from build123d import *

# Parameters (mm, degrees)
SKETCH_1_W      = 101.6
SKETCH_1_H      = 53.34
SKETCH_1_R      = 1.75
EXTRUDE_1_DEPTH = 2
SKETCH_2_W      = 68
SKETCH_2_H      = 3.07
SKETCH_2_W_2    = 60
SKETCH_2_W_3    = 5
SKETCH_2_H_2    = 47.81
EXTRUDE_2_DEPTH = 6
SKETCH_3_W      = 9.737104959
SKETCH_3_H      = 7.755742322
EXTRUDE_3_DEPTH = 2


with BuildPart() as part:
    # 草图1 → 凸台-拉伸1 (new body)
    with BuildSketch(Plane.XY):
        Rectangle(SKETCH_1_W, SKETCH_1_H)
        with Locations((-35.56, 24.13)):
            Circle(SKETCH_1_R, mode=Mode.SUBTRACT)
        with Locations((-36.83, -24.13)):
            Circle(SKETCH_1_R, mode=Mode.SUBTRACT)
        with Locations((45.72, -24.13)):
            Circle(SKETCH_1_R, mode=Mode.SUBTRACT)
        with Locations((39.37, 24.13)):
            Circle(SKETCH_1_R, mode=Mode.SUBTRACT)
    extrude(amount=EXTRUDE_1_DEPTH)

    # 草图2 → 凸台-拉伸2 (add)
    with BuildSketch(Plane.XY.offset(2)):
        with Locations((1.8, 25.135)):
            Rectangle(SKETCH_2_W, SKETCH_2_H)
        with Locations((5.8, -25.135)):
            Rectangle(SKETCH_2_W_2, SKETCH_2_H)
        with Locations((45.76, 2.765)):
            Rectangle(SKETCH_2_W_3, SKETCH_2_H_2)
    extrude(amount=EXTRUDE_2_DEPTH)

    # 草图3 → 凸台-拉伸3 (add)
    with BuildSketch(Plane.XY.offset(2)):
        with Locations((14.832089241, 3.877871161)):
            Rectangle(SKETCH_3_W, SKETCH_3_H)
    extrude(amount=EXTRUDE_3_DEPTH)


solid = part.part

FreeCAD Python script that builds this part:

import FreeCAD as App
import Part
import Sketcher

V = App.Vector

doc = App.newDocument("Part")
params = doc.addObject("Spreadsheet::Sheet", "Params")
for row, (alias, value) in enumerate([
    ("sketch1_diameter", "3.5 mm"),
    ("sketch1_width", "101.6 mm"),
    ("sketch1_height", "53.34 mm"),
    ("pad1_length", "2 mm"),
    ("sketch2_width", "68 mm"),
    ("sketch2_width2", "60 mm"),
    ("sketch2_width3", "5 mm"),
    ("sketch2_height", "3.07 mm"),
    ("sketch2_height2", "47.81 mm"),
    ("pad2_length", "6 mm"),
    ("pad3_length", "2 mm"),
], start=1):
    params.set(f"A{row}", alias)
    params.set(f"B{row}", "=" + value)
    params.setAlias(f"B{row}", alias)

body = doc.addObject("PartDesign::Body", "Body")

# Sketch on XY plane
sketch1 = body.newObject("Sketcher::SketchObject", "Sketch")
sketch1.AttachmentSupport = (doc.getObject("XY_Plane"), [""])
sketch1.MapMode = "FlatFace"
sketch1.addGeometry([
    Part.LineSegment(V(-50.8, 26.7, 0), V(-50.8, -26.7, 0)),  # 0
    Part.LineSegment(V(-50.8, -26.7, 0), V(50.8, -26.7, 0)),  # 1
    Part.LineSegment(V(50.8, -26.7, 0), V(50.8, 26.7, 0)),  # 2
    Part.LineSegment(V(50.8, 26.7, 0), V(-50.8, 26.7, 0)),  # 3
    Part.Circle(V(-36.8, -24.1, 0), V(0, 0, 1), 1.8),  # 4
    Part.Circle(V(45.7, -24.1, 0), V(0, 0, 1), 1.8),  # 5
    Part.Circle(V(-35.6, 24.1, 0), V(0, 0, 1), 1.8),  # 6
    Part.Circle(V(39.4, 24.1, 0), V(0, 0, 1), 1.8),  # 7
], False)
sketch1.addConstraint([
    Sketcher.Constraint("Coincident", 0, 2, 1, 1),
    Sketcher.Constraint("Coincident", 1, 2, 2, 1),
    Sketcher.Constraint("Coincident", 2, 2, 3, 1),
    Sketcher.Constraint("Coincident", 3, 2, 0, 1),
    Sketcher.Constraint("Vertical", 0),
    Sketcher.Constraint("Horizontal", 1),
    Sketcher.Constraint("Vertical", 2),
    Sketcher.Constraint("Horizontal", 3),
    Sketcher.Constraint("Equal", 4, 5),
    Sketcher.Constraint("Equal", 5, 6),
    Sketcher.Constraint("Equal", 6, 7),
    Sketcher.Constraint("Symmetric", 0, 2, 2, 2, -1, 1),
    Sketcher.Constraint("Horizontal", 4, 3, 5, 3),
    Sketcher.Constraint("Horizontal", 6, 3, 7, 3),
    Sketcher.Constraint("Diameter", 4, 3.5),
    Sketcher.Constraint("DistanceX", 1, 1, 1, 2, 101.6),
    Sketcher.Constraint("DistanceY", 0, 2, 0, 1, 53.34),
    Sketcher.Constraint("DistanceX", 4, 3, 7, 3, 76.2),
    Sketcher.Constraint("DistanceY", 0, 2, 6, 3, 50.8),
    Sketcher.Constraint("DistanceY", 5, 3, 2, 2, 50.8),
    Sketcher.Constraint("DistanceX", 4, 3, -1, 1, 36.83),
    Sketcher.Constraint("DistanceX", -1, 1, 5, 3, 45.72),
    Sketcher.Constraint("DistanceX", 6, 3, -1, 1, 35.56),
])
sketch1.setExpression("Constraints[14]", "Params.sketch1_diameter")
sketch1.setExpression("Constraints[15]", "Params.sketch1_width")
sketch1.setExpression("Constraints[16]", "Params.sketch1_height")
pad1 = body.newObject("PartDesign::Pad", "Pad")
pad1.Profile = sketch1
pad1.setExpression("Length", "Params.pad1_length")

# Sketch on XY plane
sketch2 = body.newObject("Sketcher::SketchObject", "Sketch001")
sketch2.AttachmentSupport = (doc.getObject("XY_Plane"), [""])
sketch2.MapMode = "FlatFace"
sketch2.AttachmentOffset = App.Placement(V(0, 0, 2), App.Rotation())
sketch2.addGeometry([
    Part.LineSegment(V(-32.2, 26.7, 0), V(-32.2, 23.6, 0)),  # 0
    Part.LineSegment(V(-32.2, 23.6, 0), V(35.8, 23.6, 0)),  # 1
    Part.LineSegment(V(35.8, 23.6, 0), V(35.8, 26.7, 0)),  # 2
    Part.LineSegment(V(35.8, 26.7, 0), V(-32.2, 26.7, 0)),  # 3
    Part.LineSegment(V(-24.2, -23.6, 0), V(-24.2, -26.7, 0)),  # 4
    Part.LineSegment(V(-24.2, -26.7, 0), V(35.8, -26.7, 0)),  # 5
    Part.LineSegment(V(35.8, -26.7, 0), V(35.8, -23.6, 0)),  # 6
    Part.LineSegment(V(35.8, -23.6, 0), V(-24.2, -23.6, 0)),  # 7
    Part.LineSegment(V(43.3, 26.7, 0), V(43.3, -21.1, 0)),  # 8
    Part.LineSegment(V(43.3, -21.1, 0), V(48.3, -21.1, 0)),  # 9
    Part.LineSegment(V(48.3, -21.1, 0), V(48.3, 26.7, 0)),  # 10
    Part.LineSegment(V(48.3, 26.7, 0), V(43.3, 26.7, 0)),  # 11
], False)
sketch2.addConstraint([
    Sketcher.Constraint("Coincident", 0, 2, 1, 1),
    Sketcher.Constraint("Coincident", 1, 2, 2, 1),
    Sketcher.Constraint("Coincident", 2, 2, 3, 1),
    Sketcher.Constraint("Coincident", 3, 2, 0, 1),
    Sketcher.Constraint("Coincident", 4, 2, 5, 1),
    Sketcher.Constraint("Coincident", 5, 2, 6, 1),
    Sketcher.Constraint("Coincident", 6, 2, 7, 1),
    Sketcher.Constraint("Coincident", 7, 2, 4, 1),
    Sketcher.Constraint("Coincident", 8, 2, 9, 1),
    Sketcher.Constraint("Coincident", 9, 2, 10, 1),
    Sketcher.Constraint("Coincident", 10, 2, 11, 1),
    Sketcher.Constraint("Coincident", 11, 2, 8, 1),
    Sketcher.Constraint("Vertical", 0),
    Sketcher.Constraint("Horizontal", 1),
    Sketcher.Constraint("Vertical", 2),
    Sketcher.Constraint("Horizontal", 3),
    Sketcher.Constraint("Vertical", 4),
    Sketcher.Constraint("Horizontal", 5),
    Sketcher.Constraint("Vertical", 6),
    Sketcher.Constraint("Horizontal", 7),
    Sketcher.Constraint("Vertical", 8),
    Sketcher.Constraint("Horizontal", 9),
    Sketcher.Constraint("Vertical", 10),
    Sketcher.Constraint("Horizontal", 11),
    Sketcher.Constraint("Symmetric", 2, 2, 5, 2, -1),
    Sketcher.Constraint("Horizontal", 3, 2, 10, 2),
    Sketcher.Constraint("Equal", 2, 4),
    Sketcher.Constraint("DistanceX", 1, 1, 1, 2, 68.0),
    Sketcher.Constraint("DistanceX", 5, 1, 5, 2, 60.0),
    Sketcher.Constraint("DistanceX", 9, 1, 9, 2, 5.0),
    Sketcher.Constraint("DistanceY", 0, 2, 0, 1, 3.07),
    Sketcher.Constraint("DistanceY", 8, 2, 8, 1, 47.81),
    Sketcher.Constraint("DistanceX", 0, 2, -1, 1, 32.2),
    Sketcher.Constraint("DistanceY", -1, 1, 0, 2, 23.6),
    Sketcher.Constraint("DistanceX", -1, 1, 8, 2, 43.26),
])
sketch2.setExpression("Constraints[27]", "Params.sketch2_width")
sketch2.setExpression("Constraints[28]", "Params.sketch2_width2")
sketch2.setExpression("Constraints[29]", "Params.sketch2_width3")
sketch2.setExpression("Constraints[30]", "Params.sketch2_height")
sketch2.setExpression("Constraints[31]", "Params.sketch2_height2")
pad2 = body.newObject("PartDesign::Pad", "Pad001")
pad2.Profile = sketch2
pad2.setExpression("Length", "Params.pad2_length")

# Sketch on XY plane
sketch3 = body.newObject("Sketcher::SketchObject", "Sketch002")
sketch3.AttachmentSupport = (doc.getObject("XY_Plane"), [""])
sketch3.MapMode = "FlatFace"
sketch3.AttachmentOffset = App.Placement(V(0, 0, 2), App.Rotation())
sketch3.addGeometry([
    Part.LineSegment(V(10, 8, 0), V(10, 0, 0)),
    Part.LineSegment(V(10, 0, 0), V(20, 0, 0)),
    Part.LineSegment(V(20, 0, 0), V(20, 8, 0)),
    Part.LineSegment(V(20, 8, 0), V(10, 8, 0)),
], False)
sketch3.addConstraint([
    Sketcher.Constraint("Coincident", 0, 2, 1, 1),
    Sketcher.Constraint("Coincident", 1, 2, 2, 1),
    Sketcher.Constraint("Coincident", 2, 2, 3, 1),
    Sketcher.Constraint("Coincident", 3, 2, 0, 1),
    Sketcher.Constraint("Vertical", 0),
    Sketcher.Constraint("Horizontal", 1),
    Sketcher.Constraint("Vertical", 2),
    Sketcher.Constraint("Horizontal", 3),
    Sketcher.Constraint("PointOnObject", 0, 2, -1),
    Sketcher.Constraint("DistanceX", 1, 1, 1, 2, 9.737105),
    Sketcher.Constraint("DistanceY", 0, 2, 0, 1, 7.755742),
    Sketcher.Constraint("DistanceX", -1, 1, 1, 2, 19.700642),
])
pad3 = body.newObject("PartDesign::Pad", "Pad002")
pad3.Profile = sketch3
pad3.setExpression("Length", "Params.pad3_length")

doc.recompute()
